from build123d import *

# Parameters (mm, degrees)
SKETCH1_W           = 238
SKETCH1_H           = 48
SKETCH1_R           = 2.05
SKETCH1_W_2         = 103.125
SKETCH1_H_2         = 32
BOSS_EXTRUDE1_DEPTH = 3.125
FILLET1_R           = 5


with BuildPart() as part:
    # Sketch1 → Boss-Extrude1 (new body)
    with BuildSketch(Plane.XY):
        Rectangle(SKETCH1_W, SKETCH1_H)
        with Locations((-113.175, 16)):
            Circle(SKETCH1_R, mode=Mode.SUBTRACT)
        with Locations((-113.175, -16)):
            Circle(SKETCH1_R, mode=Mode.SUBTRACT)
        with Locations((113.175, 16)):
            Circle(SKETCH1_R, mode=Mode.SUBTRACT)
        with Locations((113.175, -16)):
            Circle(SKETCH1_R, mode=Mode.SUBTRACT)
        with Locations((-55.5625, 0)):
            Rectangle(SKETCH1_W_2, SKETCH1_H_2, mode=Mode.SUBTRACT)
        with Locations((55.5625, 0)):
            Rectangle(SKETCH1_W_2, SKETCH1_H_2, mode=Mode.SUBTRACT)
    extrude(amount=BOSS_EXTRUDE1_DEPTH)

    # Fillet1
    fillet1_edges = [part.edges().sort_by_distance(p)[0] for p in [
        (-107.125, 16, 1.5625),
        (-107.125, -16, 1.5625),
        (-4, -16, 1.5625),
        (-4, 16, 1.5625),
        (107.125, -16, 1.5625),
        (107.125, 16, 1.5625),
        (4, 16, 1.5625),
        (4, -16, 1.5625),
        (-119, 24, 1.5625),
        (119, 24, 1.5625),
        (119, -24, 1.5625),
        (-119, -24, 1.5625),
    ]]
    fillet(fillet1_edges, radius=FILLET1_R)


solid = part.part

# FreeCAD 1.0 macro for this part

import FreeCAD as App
import Part
import Sketcher

V = App.Vector


def edges_at(feature, points):
    """Names of the edges that pass closest to the given points."""
    edges = feature.Shape.Edges
    near = lambda p: min(range(len(edges)), key=lambda i: edges[i].distToShape(Part.Vertex(*p))[0])
    return sorted({f"Edge{near(p) + 1}" for p in points})

doc = App.newDocument("Part")
body = doc.addObject("PartDesign::Body", "Body")

sketch1 = body.newObject("Sketcher::SketchObject", "Sketch")
sketch1.AttachmentSupport = (doc.getObject("XY_Plane"), [""])
sketch1.MapMode = "FlatFace"
sketch1.addGeometry([
    Part.LineSegment(V(-119, 24, 0), V(-119, -24, 0)),
    Part.LineSegment(V(-119, -24, 0), V(119, -24, 0)),
    Part.LineSegment(V(119, -24, 0), V(119, 24, 0)),
    Part.LineSegment(V(119, 24, 0), V(-119, 24, 0)),
    Part.Circle(V(-113.2, -16, 0), V(0, 0, 1), 2),
    Part.LineSegment(V(-4, -16, 0), V(-107.1, -16, 0)),
    Part.LineSegment(V(-107.1, -16, 0), V(-107.1, 16, 0)),
    Part.LineSegment(V(-107.1, 16, 0), V(-4, 16, 0)),
    Part.LineSegment(V(-4, 16, 0), V(-4, -16, 0)),
    Part.Circle(V(113.2, -16, 0), V(0, 0, 1), 2),
    Part.LineSegment(V(107.1, -16, 0), V(4, -16, 0)),
    Part.LineSegment(V(4, -16, 0), V(4, 16, 0)),
    Part.LineSegment(V(4, 16, 0), V(107.1, 16, 0)),
    Part.LineSegment(V(107.1, 16, 0), V(107.1, -16, 0)),
    Part.Circle(V(-113.2, 16, 0), V(0, 0, 1), 2),
    Part.Circle(V(113.2, 16, 0), V(0, 0, 1), 2),
], False)
sketch1.addConstraint([
    Sketcher.Constraint("Coincident", 0, 2, 1, 1),
    Sketcher.Constraint("Coincident", 1, 2, 2, 1),
    Sketcher.Constraint("Coincident", 2, 2, 3, 1),
    Sketcher.Constraint("Coincident", 3, 2, 0, 1),
    Sketcher.Constraint("Coincident", 5, 2, 6, 1),
    Sketcher.Constraint("Coincident", 6, 2, 7, 1),
    Sketcher.Constraint("Coincident", 7, 2, 8, 1),
    Sketcher.Constraint("Coincident", 8, 2, 5, 1),
    Sketcher.Constraint("Coincident", 10, 2, 11, 1),
    Sketcher.Constraint("Coincident", 11, 2, 12, 1),
    Sketcher.Constraint("Coincident", 12, 2, 13, 1),
    Sketcher.Constraint("Coincident", 13, 2, 10, 1),
    Sketcher.Constraint("Vertical", 0),
    Sketcher.Constraint("Horizontal", 1),
    Sketcher.Constraint("Vertical", 2),
    Sketcher.Constraint("Horizontal", 3),
    Sketcher.Constraint("Horizontal", 5),
    Sketcher.Constraint("Vertical", 6),
    Sketcher.Constraint("Horizontal", 7),
    Sketcher.Constraint("Vertical", 8),
    Sketcher.Constraint("Horizontal", 10),
    Sketcher.Constraint("Vertical", 11),
    Sketcher.Constraint("Horizontal", 12),
    Sketcher.Constraint("Vertical", 13),
    Sketcher.Constraint("Equal", 4, 9),
    Sketcher.Constraint("Equal", 9, 14),
    Sketcher.Constraint("Equal", 14, 15),
    Sketcher.Constraint("Symmetric", 9, 3, 14, 3, -1, 1),
    Sketcher.Constraint("Symmetric", 4, 3, 15, 3, -1, 1),
    Sketcher.Constraint("Symmetric", 0, 2, 2, 2, -1, 1),
    Sketcher.Constraint("Symmetric", 7, 2, 10, 2, -1, 1),
    Sketcher.Constraint("Symmetric", 5, 2, 12, 2, -1, 1),
    Sketcher.Constraint("Symmetric", 4, 3, 9, 3, -2),
    Sketcher.Constraint("Horizontal", 9, 3, 5, 2),
    Sketcher.Constraint("Horizontal", 15, 3, 6, 2),
    Sketcher.Constraint("Diameter", 4, 4.1),
    Sketcher.Constraint("DistanceX", 1, 1, 1, 2, 238.0),
    Sketcher.Constraint("DistanceY", 0, 2, 0, 1, 48.0),
    Sketcher.Constraint("DistanceY", 6, 1, 6, 2, 32.0),
    Sketcher.Constraint("DistanceX", 7, 2, -1, 1, 4.0),
    Sketcher.Constraint("DistanceX", 5, 2, 9, 3, 220.3),
    Sketcher.Constraint("DistanceX", 5, 2, 5, 1, 103.125),
])
pad1 = body.newObject("PartDesign::Pad", "Pad")
pad1.Profile = sketch1
pad1.Length = 3.125
doc.recompute()

fillet = body.newObject("PartDesign::Fillet", "Fillet")
fillet.Base = (pad1, edges_at(pad1, [
    (-107.125, 16, 1.562),
    (-107.125, -16, 1.562),
    (-4, -16, 1.562),
    (-4, 16, 1.562),
    (107.125, -16, 1.562),
    (107.125, 16, 1.562),
    (4, 16, 1.562),
    (4, -16, 1.562),
    (-119, 24, 1.562),
    (119, 24, 1.562),
    (119, -24, 1.562),
    (-119, -24, 1.562),
]))
fillet.Radius = 5

doc.recompute()
